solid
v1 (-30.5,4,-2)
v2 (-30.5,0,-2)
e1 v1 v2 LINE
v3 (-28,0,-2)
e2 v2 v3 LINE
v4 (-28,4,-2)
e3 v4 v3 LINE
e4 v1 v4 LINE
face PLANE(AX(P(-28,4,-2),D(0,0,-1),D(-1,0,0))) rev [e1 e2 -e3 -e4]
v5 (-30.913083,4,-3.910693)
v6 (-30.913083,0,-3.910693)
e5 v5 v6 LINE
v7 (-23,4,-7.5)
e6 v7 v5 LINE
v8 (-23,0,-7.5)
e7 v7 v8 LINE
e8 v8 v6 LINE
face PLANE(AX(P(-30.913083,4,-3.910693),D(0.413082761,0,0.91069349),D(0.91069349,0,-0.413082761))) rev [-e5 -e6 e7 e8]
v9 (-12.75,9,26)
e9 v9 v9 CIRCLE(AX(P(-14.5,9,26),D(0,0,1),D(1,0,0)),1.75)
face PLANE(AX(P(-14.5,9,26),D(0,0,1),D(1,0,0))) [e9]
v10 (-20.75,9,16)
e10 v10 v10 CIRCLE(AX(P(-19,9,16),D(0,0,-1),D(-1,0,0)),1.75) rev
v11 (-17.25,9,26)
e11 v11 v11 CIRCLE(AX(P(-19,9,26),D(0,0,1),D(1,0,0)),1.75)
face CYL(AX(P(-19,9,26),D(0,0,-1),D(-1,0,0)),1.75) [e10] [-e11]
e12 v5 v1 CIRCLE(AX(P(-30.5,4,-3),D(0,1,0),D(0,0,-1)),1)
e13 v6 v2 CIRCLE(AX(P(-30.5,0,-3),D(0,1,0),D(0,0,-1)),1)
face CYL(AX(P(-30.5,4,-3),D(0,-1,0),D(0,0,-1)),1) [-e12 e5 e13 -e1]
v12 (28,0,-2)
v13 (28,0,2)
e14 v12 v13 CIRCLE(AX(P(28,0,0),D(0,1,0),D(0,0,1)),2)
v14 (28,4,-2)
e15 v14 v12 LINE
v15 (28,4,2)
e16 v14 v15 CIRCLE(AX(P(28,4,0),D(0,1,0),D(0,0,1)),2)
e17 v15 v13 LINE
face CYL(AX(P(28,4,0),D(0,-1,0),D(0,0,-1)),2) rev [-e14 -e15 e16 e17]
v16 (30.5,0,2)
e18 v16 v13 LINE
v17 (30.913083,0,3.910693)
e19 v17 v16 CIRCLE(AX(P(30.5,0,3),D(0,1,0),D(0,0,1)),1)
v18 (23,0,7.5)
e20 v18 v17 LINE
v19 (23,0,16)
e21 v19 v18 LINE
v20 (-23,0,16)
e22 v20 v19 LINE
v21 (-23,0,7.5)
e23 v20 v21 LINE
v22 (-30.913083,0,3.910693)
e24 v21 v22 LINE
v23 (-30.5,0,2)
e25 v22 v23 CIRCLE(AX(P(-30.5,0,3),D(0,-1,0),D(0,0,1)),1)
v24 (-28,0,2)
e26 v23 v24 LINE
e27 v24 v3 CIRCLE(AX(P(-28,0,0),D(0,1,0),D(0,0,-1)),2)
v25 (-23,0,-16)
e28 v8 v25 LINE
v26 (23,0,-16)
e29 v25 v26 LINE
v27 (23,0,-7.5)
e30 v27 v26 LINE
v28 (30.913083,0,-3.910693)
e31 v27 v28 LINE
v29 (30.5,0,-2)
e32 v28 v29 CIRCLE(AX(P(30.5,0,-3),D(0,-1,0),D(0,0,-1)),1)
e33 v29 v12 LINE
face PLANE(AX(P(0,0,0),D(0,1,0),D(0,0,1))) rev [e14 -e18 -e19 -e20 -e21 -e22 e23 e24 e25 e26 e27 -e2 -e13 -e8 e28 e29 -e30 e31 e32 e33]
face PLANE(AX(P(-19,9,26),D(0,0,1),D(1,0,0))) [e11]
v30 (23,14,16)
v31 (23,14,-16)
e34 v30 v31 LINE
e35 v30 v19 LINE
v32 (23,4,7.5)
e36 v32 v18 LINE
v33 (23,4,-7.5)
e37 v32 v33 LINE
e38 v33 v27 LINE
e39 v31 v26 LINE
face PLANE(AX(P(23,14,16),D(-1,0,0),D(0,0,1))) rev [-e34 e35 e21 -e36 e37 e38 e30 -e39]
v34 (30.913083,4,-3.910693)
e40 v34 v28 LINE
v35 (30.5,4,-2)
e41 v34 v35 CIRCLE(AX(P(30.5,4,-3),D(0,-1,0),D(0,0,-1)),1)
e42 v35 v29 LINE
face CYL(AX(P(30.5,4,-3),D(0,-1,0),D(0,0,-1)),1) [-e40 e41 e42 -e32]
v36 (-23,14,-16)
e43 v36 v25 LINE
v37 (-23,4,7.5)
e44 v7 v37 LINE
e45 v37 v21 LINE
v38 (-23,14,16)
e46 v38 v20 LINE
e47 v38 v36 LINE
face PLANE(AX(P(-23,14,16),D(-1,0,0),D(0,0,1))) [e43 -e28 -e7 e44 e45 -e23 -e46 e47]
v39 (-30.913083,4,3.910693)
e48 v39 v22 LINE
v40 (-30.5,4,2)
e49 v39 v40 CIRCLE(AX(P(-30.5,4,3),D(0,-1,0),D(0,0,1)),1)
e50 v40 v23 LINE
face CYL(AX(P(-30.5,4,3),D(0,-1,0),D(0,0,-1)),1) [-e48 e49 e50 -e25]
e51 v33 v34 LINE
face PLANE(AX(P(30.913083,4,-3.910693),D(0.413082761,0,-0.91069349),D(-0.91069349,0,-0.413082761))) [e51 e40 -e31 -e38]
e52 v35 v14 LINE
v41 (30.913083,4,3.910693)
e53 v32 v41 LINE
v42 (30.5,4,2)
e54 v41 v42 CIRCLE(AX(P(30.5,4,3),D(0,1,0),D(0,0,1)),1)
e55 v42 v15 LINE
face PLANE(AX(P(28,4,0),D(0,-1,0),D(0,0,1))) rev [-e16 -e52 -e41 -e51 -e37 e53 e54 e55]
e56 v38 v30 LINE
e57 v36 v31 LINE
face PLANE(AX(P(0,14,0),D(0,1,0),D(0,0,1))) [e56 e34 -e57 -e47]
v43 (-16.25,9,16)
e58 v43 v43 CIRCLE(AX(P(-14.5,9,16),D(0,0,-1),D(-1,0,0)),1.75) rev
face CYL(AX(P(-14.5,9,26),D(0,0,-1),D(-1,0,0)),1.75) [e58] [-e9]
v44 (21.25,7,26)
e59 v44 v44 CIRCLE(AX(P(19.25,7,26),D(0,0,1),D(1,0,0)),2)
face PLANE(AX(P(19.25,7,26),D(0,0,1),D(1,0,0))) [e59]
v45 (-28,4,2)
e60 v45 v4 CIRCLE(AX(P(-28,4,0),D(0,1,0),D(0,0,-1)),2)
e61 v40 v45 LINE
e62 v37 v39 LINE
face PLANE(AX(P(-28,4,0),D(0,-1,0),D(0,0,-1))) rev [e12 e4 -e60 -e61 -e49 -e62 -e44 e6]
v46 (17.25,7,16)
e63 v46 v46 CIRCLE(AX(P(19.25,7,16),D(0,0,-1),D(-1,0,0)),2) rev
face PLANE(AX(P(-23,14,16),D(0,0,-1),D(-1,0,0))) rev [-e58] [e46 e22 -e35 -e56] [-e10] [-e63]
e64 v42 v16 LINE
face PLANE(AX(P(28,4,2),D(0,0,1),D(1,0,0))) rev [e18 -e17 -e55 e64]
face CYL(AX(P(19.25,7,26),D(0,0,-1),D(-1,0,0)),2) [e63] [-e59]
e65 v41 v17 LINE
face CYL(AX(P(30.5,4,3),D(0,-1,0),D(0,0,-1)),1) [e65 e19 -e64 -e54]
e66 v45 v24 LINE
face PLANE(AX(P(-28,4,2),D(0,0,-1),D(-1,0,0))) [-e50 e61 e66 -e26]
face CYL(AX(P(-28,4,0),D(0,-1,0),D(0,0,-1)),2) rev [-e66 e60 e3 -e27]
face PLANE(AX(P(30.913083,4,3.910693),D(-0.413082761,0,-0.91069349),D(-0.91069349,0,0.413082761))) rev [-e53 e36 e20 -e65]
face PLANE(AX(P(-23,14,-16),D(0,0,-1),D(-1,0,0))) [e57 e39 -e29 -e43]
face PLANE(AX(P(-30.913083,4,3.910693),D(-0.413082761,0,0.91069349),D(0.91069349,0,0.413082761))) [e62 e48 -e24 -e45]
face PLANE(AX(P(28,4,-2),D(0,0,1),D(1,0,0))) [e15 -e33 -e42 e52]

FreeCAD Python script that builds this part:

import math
import FreeCAD as App
import Part
import Sketcher
Q = App.Units.Quantity

doc = App.newDocument("Part")
params = doc.addObject("Spreadsheet::Sheet", "Params")
for row, (alias, value) in enumerate([
    ("sketch1_width", "46 mm"),
    ("sketch1_height", "32 mm"),
    ("pad1_length", "14 mm"),
    ("sketch2_radius", "2 mm"),
    ("sketch2_radius2", "1 mm"),
    ("sketch2_width", "3 mm"),
    ("sketch2_width2", "2.5 mm"),
    ("sketch2_height", "7.5 mm"),
    ("pad2_length", "4 mm"),
    ("sketch3_radius", "2 mm"),
    ("sketch3_radius2", "1 mm"),
    ("sketch3_width", "3 mm"),
    ("sketch3_width2", "2.5 mm"),
    ("sketch3_height", "7.5 mm"),
    ("pad3_length", "4 mm"),
    ("sketch4_diameter", "4 mm"),
    ("sketch4_diameter2", "3.5 mm"),
    ("pad4_length", "10 mm"),
], start=1):
    params.set(f"A{row}", alias)
    params.set(f"B{row}", "=" + value)
    params.setAlias(f"B{row}", alias)

body = doc.addObject("PartDesign::Body", "Body")

sketch1 = body.newObject("Sketcher::SketchObject", "Sketch")
sketch1.AttachmentSupport = (doc.getObject("XZ_Plane"), [""])
sketch1.MapMode = "FlatFace"
sketch1.addGeometry([
    Part.LineSegment(App.Vector(-23, -16, 0), App.Vector(-23, 16, 0)),
    Part.LineSegment(App.Vector(-23, 16, 0), App.Vector(23, 16, 0)),
    Part.LineSegment(App.Vector(23, 16, 0), App.Vector(23, -16, 0)),
    Part.LineSegment(App.Vector(23, -16, 0), App.Vector(-23, -16, 0)),
], False)
sketch1.addConstraint([
    Sketcher.Constraint("Coincident", 0, 2, 1, 1),
    Sketcher.Constraint("Coincident", 1, 2, 2, 1),
    Sketcher.Constraint("Coincident", 2, 2, 3, 1),
    Sketcher.Constraint("Coincident", 3, 2, 0, 1),
    Sketcher.Constraint("Vertical", 0),
    Sketcher.Constraint("Horizontal", 1),
    Sketcher.Constraint("Vertical", 2),
    Sketcher.Constraint("Horizontal", 3),
    Sketcher.Constraint("Symmetric", 0, 2, 2, 2, -1, 1),
    Sketcher.Constraint("DistanceX", 1, 1, 1, 2, Q("46 mm")),
    Sketcher.Constraint("DistanceY", 0, 1, 0, 2, Q("32 mm")),
])
sketch1.setExpression("Constraints[9]", "Params.sketch1_width")
sketch1.setExpression("Constraints[10]", "Params.sketch1_height")
pad1 = body.newObject("PartDesign::Pad", "Pad")
pad1.Profile = sketch1
pad1.setExpression("Length", "Params.pad1_length")
pad1.Reversed = True

sketch2 = body.newObject("Sketcher::SketchObject", "Sketch001")
sketch2.AttachmentSupport = (doc.getObject("XZ_Plane"), [""])
sketch2.MapMode = "FlatFace"
sketch2.addGeometry([
    Part.LineSegment(App.Vector(-30.5, 2, 0), App.Vector(-28, 2, 0)),
    Part.ArcOfCircle(Part.Circle(App.Vector(-28, 0, 0), App.Vector(0, 0, 1), 2), math.radians(0), math.radians(90)),
    Part.LineSegment(App.Vector(-26, 0, 0), App.Vector(-23, 0, 0)),
    Part.LineSegment(App.Vector(-23, 0, 0), App.Vector(-23, 7.5, 0)),
    Part.LineSegment(App.Vector(-23, 7.5, 0), App.Vector(-30.9, 3.9, 0)),
    Part.ArcOfCircle(Part.Circle(App.Vector(-30.5, 3, 0), App.Vector(0, 0, 1), 1), math.radians(114), math.radians(270)),
], False)
sketch2.addConstraint([
    Sketcher.Constraint("Tangent", 0, 2, 1, 2),
    Sketcher.Constraint("Coincident", 1, 1, 2, 1),
    Sketcher.Constraint("Coincident", 2, 2, 3, 1),
    Sketcher.Constraint("Coincident", 3, 2, 4, 1),
    Sketcher.Constraint("Tangent", 4, 2, 5, 1),
    Sketcher.Constraint("Tangent", 5, 2, 0, 1),
    Sketcher.Constraint("Horizontal", 0),
    Sketcher.Constraint("Horizontal", 2),
    Sketcher.Constraint("Vertical", 3),
    Sketcher.Constraint("PointOnObject", 1, 3, -1),
    Sketcher.Constraint("PointOnObject", 1, 1, -1),
    Sketcher.Constraint("Radius", 1, Q("2 mm")),
    Sketcher.Constraint("Radius", 5, Q("1 mm")),
    Sketcher.Constraint("DistanceX", 2, 1, 2, 2, Q("3 mm")),
    Sketcher.Constraint("DistanceX", 0, 1, 0, 2, Q("2.5 mm")),
    Sketcher.Constraint("DistanceY", 3, 1, 3, 2, Q("7.5 mm")),
    Sketcher.Constraint("DistanceX", 1, 3, -1, 1, Q("28 mm")),
])
sketch2.setExpression("Constraints[11]", "Params.sketch2_radius")
sketch2.setExpression("Constraints[12]", "Params.sketch2_radius2")
sketch2.setExpression("Constraints[13]", "Params.sketch2_width")
sketch2.setExpression("Constraints[14]", "Params.sketch2_width2")
sketch2.setExpression("Constraints[15]", "Params.sketch2_height")
pad2 = body.newObject("PartDesign::Pad", "Pad001")
pad2.Profile = sketch2
pad2.setExpression("Length", "Params.pad2_length")
pad2.Reversed = True
doc.recompute()

mirrored = body.newObject("PartDesign::Mirrored", "Mirrored")
mirrored.Originals = [pad2]
mirrored.MirrorPlane = (doc.getObject("XY_Plane"), [""])
body.Tip = mirrored
doc.recompute()

mirrored2 = body.newObject("PartDesign::Mirrored", "Mirrored001")
mirrored2.Originals = [pad2]
mirrored2.MirrorPlane = (doc.getObject("YZ_Plane"), [""])
body.Tip = mirrored2

sketch3 = body.newObject("Sketcher::SketchObject", "Sketch002")
sketch3.AttachmentSupport = (doc.getObject("XZ_Plane"), [""])
sketch3.MapMode = "FlatFace"
sketch3.addGeometry([
    Part.LineSegment(App.Vector(30.5, -2, 0), App.Vector(28, -2, 0)),
    Part.ArcOfCircle(Part.Circle(App.Vector(28, 0, 0), App.Vector(0, 0, 1), 2), math.radians(-180), math.radians(-90)),
    Part.LineSegment(App.Vector(26, 0, 0), App.Vector(23, 0, 0)),
    Part.LineSegment(App.Vector(23, 0, 0), App.Vector(23, -7.5, 0)),
    Part.LineSegment(App.Vector(23, -7.5, 0), App.Vector(30.9, -3.9, 0)),
    Part.ArcOfCircle(Part.Circle(App.Vector(30.5, -3, 0), App.Vector(0, 0, 1), 1), math.radians(-66), math.radians(90)),
], False)
sketch3.addConstraint([
    Sketcher.Constraint("Tangent", 0, 2, 1, 2),
    Sketcher.Constraint("Coincident", 1, 1, 2, 1),
    Sketcher.Constraint("Coincident", 2, 2, 3, 1),
    Sketcher.Constraint("Coincident", 3, 2, 4, 1),
    Sketcher.Constraint("Tangent", 4, 2, 5, 1),
    Sketcher.Constraint("Tangent", 5, 2, 0, 1),
    Sketcher.Constraint("Horizontal", 0),
    Sketcher.Constraint("Horizontal", 2),
    Sketcher.Constraint("Vertical", 3),
    Sketcher.Constraint("PointOnObject", 1, 3, -1),
    Sketcher.Constraint("PointOnObject", 1, 1, -1),
    Sketcher.Constraint("Radius", 1, Q("2 mm")),
    Sketcher.Constraint("Radius", 5, Q("1 mm")),
    Sketcher.Constraint("DistanceX", 2, 2, 2, 1, Q("3 mm")),
    Sketcher.Constraint("DistanceX", 0, 2, 0, 1, Q("2.5 mm")),
    Sketcher.Constraint("DistanceY", 3, 2, 3, 1, Q("7.5 mm")),
    Sketcher.Constraint("DistanceX", -1, 1, 1, 3, Q("28 mm")),
])
sketch3.setExpression("Constraints[11]", "Params.sketch3_radius")
sketch3.setExpression("Constraints[12]", "Params.sketch3_radius2")
sketch3.setExpression("Constraints[13]", "Params.sketch3_width")
sketch3.setExpression("Constraints[14]", "Params.sketch3_width2")
sketch3.setExpression("Constraints[15]", "Params.sketch3_height")
pad3 = body.newObject("PartDesign::Pad", "Pad002")
pad3.Profile = sketch3
pad3.setExpression("Length", "Params.pad3_length")
pad3.Reversed = True

sketch4 = body.newObject("Sketcher::SketchObject", "Sketch003")
sketch4.AttachmentSupport = (doc.getObject("XY_Plane"), [""])
sketch4.MapMode = "FlatFace"
sketch4.AttachmentOffset = App.Placement(App.Vector(0, 0, 16), App.Rotation())
sketch4.addGeometry([
    Part.Circle(App.Vector(-19, 9, 0), App.Vector(0, 0, 1), 1.8),
    Part.Circle(App.Vector(-14.5, 9, 0), App.Vector(0, 0, 1), 1.8),
    Part.Circle(App.Vector(19.2, 7, 0), App.Vector(0, 0, 1), 2),
], False)
sketch4.addConstraint([
    Sketcher.Constraint("Equal", 0, 1),
    Sketcher.Constraint("Horizontal", 0, 3, 1, 3),
    Sketcher.Constraint("Diameter", 2, Q("4 mm")),
    Sketcher.Constraint("Diameter", 0, Q("3.5 mm")),
    Sketcher.Constraint("DistanceX", 0, 3, -1, 1, Q("19 mm")),
    Sketcher.Constraint("DistanceY", -1, 1, 0, 3, Q("9 mm")),
    Sketcher.Constraint("DistanceY", -1, 1, 2, 3, Q("7 mm")),
    Sketcher.Constraint("DistanceX", 1, 3, -1, 1, Q("14.5 mm")),
    Sketcher.Constraint("DistanceX", -1, 1, 2, 3, Q("19.25 mm")),
])
sketch4.setExpression("Constraints[2]", "Params.sketch4_diameter")
sketch4.setExpression("Constraints[3]", "Params.sketch4_diameter2")
pad4 = body.newObject("PartDesign::Pad", "Pad003")
pad4.Profile = sketch4
pad4.setExpression("Length", "Params.pad4_length")

doc.recompute()
